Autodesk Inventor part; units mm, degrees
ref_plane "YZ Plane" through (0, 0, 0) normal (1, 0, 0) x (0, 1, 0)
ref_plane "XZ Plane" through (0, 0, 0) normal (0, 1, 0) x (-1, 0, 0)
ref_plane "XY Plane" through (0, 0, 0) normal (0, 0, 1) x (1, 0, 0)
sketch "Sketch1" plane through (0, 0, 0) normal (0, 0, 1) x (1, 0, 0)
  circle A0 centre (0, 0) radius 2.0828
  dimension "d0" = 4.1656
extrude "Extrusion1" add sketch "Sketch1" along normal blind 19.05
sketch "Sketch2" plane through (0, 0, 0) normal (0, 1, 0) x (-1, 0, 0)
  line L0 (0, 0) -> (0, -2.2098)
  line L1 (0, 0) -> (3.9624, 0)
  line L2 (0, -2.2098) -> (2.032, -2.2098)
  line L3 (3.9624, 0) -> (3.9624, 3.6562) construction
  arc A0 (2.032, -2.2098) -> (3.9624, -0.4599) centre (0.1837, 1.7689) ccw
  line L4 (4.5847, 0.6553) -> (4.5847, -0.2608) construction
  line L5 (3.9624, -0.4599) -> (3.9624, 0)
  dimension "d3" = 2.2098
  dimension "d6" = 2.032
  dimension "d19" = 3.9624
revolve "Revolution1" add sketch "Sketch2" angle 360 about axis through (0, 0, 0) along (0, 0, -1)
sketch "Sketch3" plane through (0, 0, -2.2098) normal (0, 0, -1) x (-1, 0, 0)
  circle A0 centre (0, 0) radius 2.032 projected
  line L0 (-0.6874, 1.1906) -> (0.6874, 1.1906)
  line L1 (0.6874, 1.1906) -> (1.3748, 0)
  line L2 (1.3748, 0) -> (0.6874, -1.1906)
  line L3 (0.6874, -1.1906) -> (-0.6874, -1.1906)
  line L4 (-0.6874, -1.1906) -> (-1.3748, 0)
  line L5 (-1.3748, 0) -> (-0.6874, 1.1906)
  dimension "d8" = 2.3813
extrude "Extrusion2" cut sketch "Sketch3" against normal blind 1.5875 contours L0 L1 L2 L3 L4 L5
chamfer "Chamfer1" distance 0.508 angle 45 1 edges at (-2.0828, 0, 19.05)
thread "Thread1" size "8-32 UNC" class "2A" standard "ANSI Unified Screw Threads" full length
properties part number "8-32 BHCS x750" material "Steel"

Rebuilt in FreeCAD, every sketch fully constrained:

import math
import FreeCAD as App
import Part
import Sketcher

V = App.Vector
Q = App.Units.Quantity


def edges_at(feature, points):
    """Names of the edges that pass closest to the given points."""
    edges = feature.Shape.Edges
    near = lambda p: min(range(len(edges)), key=lambda i: edges[i].distToShape(Part.Vertex(*p))[0])
    return sorted({f"Edge{near(p) + 1}" for p in points})


def add_polygon(sketch, points):
    """Adds a closed chain of lines whose ends are joined by coincident constraints."""
    first, n = sketch.GeometryCount, len(points)
    for a, b in zip(points, points[1:] + points[:1]):
        sketch.addGeometry(Part.LineSegment(App.Vector(*a, 0), App.Vector(*b, 0)), False)
    for i in range(n):
        sketch.addConstraint(Sketcher.Constraint("Coincident", first + i, 2, first + (i + 1) % n, 1))

doc = App.newDocument("Part")
body = doc.addObject("PartDesign::Body", "Body")

# Sketch on XY plane
sketch1 = doc.addObject("Sketcher::SketchObject", "Sketch")
body.addObject(sketch1)
sketch1.AttachmentSupport = (doc.XY_Plane, [""])
sketch1.MapMode = "FlatFace"
sketch1.addGeometry(Part.Circle(V(0, 0, 0), V(0, 0, 1), 2.1), False)
sketch1.addConstraint([
    Sketcher.Constraint("Coincident", 0, 3, -1, 1),
    Sketcher.Constraint("Diameter", 0, Q("0.164 in")),
])
pad1 = doc.addObject("PartDesign::Pad", "Pad")
body.addObject(pad1)
pad1.Profile = sketch1
pad1.Length = Q("0.75 in")

# Sketch on XZ plane
sketch2 = doc.addObject("Sketcher::SketchObject", "Sketch001")
body.addObject(sketch2)
sketch2.AttachmentSupport = (doc.XZ_Plane, [""])
sketch2.MapMode = "FlatFace"
sketch2.addGeometry([
    Part.LineSegment(V(-3.96, 0, 0), V(0, 0, 0)),  # 0
    Part.LineSegment(V(0, 0, 0), V(0, -2.21, 0)),  # 1
    Part.LineSegment(V(0, -2.21, 0), V(-2.03, -2.21, 0)),  # 2
    Part.ArcOfCircle(Part.Circle(V(-0.18, 1.77, 0), V(0, 0, 1), 4.39), math.radians(-149), math.radians(-115)),  # 3
    Part.LineSegment(V(-3.96, -0.46, 0), V(-3.96, 0, 0)),  # 4
], False)
sketch2.addConstraint([
    Sketcher.Constraint("Coincident", 0, 2, 1, 1),
    Sketcher.Constraint("Coincident", 1, 2, 2, 1),
    Sketcher.Constraint("Coincident", 2, 2, 3, 2),
    Sketcher.Constraint("Coincident", 3, 1, 4, 1),
    Sketcher.Constraint("Coincident", 4, 2, 0, 1),
    Sketcher.Constraint("Horizontal", 0),
    Sketcher.Constraint("Vertical", 1),
    Sketcher.Constraint("Horizontal", 2),
    Sketcher.Constraint("Vertical", 4),
    Sketcher.Constraint("Coincident", 0, 2, -1, 1),
    Sketcher.Constraint("DistanceX", 2, 2, 2, 1, Q("0.08 in")),
    Sketcher.Constraint("DistanceX", 0, 1, 0, 2, Q("0.156 in")),
    Sketcher.Constraint("DistanceY", 1, 2, 1, 1, Q("0.087 in")),
    Sketcher.Constraint("Radius", 3, Q("4.387 mm")),
    Sketcher.Constraint("DistanceY", 4, 1, 4, 2, Q("0.0181 in")),
])
revolution = doc.addObject("PartDesign::Revolution", "Revolution")
body.addObject(revolution)
revolution.Profile = sketch2
revolution.ReferenceAxis = (sketch2, ["V_Axis"])
revolution.Angle = 360

# Sketch on XY plane
sketch3 = doc.addObject("Sketcher::SketchObject", "Sketch002")
body.addObject(sketch3)
sketch3.AttachmentSupport = (doc.XY_Plane, [""])
sketch3.MapMode = "FlatFace"
sketch3.AttachmentOffset = App.Placement(V(0, 0, -0.087 * 25.4), App.Rotation())
add_polygon(sketch3, [(-0.7, 1.2), (0.7, 1.2), (1.4, 0), (0.7, -1.2), (-0.7, -1.2), (-1.4, 0)])  # lines 0-5
sketch3.addConstraint([
    Sketcher.Constraint("Horizontal", 0),
    Sketcher.Constraint("Horizontal", 3),
    Sketcher.Constraint("Symmetric", 0, 2, 3, 2, -1, 1),
    Sketcher.Constraint("Symmetric", 1, 2, 4, 2, -1, 1),
    Sketcher.Constraint("PointOnObject", 1, 2, -1),
    Sketcher.Constraint("Parallel", 2, 5),
    Sketcher.Constraint("Vertical", 0, 2, 2, 2),
    Sketcher.Constraint("Angle", 1, Q("-59.9998 deg")),
    Sketcher.Constraint("DistanceY", 2, 2, 0, 2, Q("0.093748 in")),
    Sketcher.Constraint("DistanceX", 0, 1, 0, 2, Q("1.3748 mm")),
])
pocket1 = doc.addObject("PartDesign::Pocket", "Pocket")
body.addObject(pocket1)
pocket1.Profile = sketch3
pocket1.Length = Q("0.0625 in")
pocket1.Reversed = True
doc.recompute()

chamfer = doc.addObject("PartDesign::Chamfer", "Chamfer")
body.addObject(chamfer)
chamfer.Base = (pocket1, edges_at(pocket1, [(-2.083, 0, 19.05)]))
chamfer.Size = Q("0.02 in")

doc.recompute()
